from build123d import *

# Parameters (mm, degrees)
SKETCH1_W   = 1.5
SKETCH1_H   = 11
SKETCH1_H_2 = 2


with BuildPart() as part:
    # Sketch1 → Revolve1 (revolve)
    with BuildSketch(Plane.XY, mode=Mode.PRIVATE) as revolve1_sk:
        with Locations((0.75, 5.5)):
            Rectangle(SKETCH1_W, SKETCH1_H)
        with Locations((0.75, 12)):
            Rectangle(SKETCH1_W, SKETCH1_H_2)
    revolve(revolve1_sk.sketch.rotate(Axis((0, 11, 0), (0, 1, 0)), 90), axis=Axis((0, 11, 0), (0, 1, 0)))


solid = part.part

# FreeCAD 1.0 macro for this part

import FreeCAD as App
import Part
import Sketcher
from FreeCAD import Vector


def add_polygon(sketch, points):
    """Adds a closed chain of lines whose ends are joined by coincident constraints."""
    first, n = sketch.GeometryCount, len(points)
    for a, b in zip(points, points[1:] + points[:1]):
        sketch.addGeometry(Part.LineSegment(App.Vector(*a, 0), App.Vector(*b, 0)), False)
    for i in range(n):
        sketch.addConstraint(Sketcher.Constraint("Coincident", first + i, 2, first + (i + 1) % n, 1))

doc = App.newDocument("Part")
body = doc.addObject("PartDesign::Body", "Body")

# Sketch on XY plane
sketch1 = doc.addObject("Sketcher::SketchObject", "Sketch")
body.addObject(sketch1)
sketch1.AttachmentSupport = (doc.XY_Plane, [""])
sketch1.MapMode = "FlatFace"
add_polygon(sketch1, [(0, 0), (1.5, 0), (1.5, 13), (0, 13)])  # lines 0-3
sketch1.addConstraint(Sketcher.Constraint("Horizontal", 0))
sketch1.addConstraint(Sketcher.Constraint("Vertical", 1))
sketch1.addConstraint(Sketcher.Constraint("Horizontal", 2))
sketch1.addConstraint(Sketcher.Constraint("Vertical", 3))
sketch1.addConstraint(Sketcher.Constraint("Coincident", 3, 2, -1, 1))
sketch1.addConstraint(Sketcher.Constraint("DistanceY", 1, 1, 1, 2, 13.0))
sketch1.addConstraint(Sketcher.Constraint("DistanceX", 0, 1, 0, 2, 1.5))
revolution = doc.addObject("PartDesign::Revolution", "Revolution")
body.addObject(revolution)
revolution.Profile = sketch1
revolution.ReferenceAxis = (sketch1, ["V_Axis"])
revolution.Angle = 360

doc.recompute()
